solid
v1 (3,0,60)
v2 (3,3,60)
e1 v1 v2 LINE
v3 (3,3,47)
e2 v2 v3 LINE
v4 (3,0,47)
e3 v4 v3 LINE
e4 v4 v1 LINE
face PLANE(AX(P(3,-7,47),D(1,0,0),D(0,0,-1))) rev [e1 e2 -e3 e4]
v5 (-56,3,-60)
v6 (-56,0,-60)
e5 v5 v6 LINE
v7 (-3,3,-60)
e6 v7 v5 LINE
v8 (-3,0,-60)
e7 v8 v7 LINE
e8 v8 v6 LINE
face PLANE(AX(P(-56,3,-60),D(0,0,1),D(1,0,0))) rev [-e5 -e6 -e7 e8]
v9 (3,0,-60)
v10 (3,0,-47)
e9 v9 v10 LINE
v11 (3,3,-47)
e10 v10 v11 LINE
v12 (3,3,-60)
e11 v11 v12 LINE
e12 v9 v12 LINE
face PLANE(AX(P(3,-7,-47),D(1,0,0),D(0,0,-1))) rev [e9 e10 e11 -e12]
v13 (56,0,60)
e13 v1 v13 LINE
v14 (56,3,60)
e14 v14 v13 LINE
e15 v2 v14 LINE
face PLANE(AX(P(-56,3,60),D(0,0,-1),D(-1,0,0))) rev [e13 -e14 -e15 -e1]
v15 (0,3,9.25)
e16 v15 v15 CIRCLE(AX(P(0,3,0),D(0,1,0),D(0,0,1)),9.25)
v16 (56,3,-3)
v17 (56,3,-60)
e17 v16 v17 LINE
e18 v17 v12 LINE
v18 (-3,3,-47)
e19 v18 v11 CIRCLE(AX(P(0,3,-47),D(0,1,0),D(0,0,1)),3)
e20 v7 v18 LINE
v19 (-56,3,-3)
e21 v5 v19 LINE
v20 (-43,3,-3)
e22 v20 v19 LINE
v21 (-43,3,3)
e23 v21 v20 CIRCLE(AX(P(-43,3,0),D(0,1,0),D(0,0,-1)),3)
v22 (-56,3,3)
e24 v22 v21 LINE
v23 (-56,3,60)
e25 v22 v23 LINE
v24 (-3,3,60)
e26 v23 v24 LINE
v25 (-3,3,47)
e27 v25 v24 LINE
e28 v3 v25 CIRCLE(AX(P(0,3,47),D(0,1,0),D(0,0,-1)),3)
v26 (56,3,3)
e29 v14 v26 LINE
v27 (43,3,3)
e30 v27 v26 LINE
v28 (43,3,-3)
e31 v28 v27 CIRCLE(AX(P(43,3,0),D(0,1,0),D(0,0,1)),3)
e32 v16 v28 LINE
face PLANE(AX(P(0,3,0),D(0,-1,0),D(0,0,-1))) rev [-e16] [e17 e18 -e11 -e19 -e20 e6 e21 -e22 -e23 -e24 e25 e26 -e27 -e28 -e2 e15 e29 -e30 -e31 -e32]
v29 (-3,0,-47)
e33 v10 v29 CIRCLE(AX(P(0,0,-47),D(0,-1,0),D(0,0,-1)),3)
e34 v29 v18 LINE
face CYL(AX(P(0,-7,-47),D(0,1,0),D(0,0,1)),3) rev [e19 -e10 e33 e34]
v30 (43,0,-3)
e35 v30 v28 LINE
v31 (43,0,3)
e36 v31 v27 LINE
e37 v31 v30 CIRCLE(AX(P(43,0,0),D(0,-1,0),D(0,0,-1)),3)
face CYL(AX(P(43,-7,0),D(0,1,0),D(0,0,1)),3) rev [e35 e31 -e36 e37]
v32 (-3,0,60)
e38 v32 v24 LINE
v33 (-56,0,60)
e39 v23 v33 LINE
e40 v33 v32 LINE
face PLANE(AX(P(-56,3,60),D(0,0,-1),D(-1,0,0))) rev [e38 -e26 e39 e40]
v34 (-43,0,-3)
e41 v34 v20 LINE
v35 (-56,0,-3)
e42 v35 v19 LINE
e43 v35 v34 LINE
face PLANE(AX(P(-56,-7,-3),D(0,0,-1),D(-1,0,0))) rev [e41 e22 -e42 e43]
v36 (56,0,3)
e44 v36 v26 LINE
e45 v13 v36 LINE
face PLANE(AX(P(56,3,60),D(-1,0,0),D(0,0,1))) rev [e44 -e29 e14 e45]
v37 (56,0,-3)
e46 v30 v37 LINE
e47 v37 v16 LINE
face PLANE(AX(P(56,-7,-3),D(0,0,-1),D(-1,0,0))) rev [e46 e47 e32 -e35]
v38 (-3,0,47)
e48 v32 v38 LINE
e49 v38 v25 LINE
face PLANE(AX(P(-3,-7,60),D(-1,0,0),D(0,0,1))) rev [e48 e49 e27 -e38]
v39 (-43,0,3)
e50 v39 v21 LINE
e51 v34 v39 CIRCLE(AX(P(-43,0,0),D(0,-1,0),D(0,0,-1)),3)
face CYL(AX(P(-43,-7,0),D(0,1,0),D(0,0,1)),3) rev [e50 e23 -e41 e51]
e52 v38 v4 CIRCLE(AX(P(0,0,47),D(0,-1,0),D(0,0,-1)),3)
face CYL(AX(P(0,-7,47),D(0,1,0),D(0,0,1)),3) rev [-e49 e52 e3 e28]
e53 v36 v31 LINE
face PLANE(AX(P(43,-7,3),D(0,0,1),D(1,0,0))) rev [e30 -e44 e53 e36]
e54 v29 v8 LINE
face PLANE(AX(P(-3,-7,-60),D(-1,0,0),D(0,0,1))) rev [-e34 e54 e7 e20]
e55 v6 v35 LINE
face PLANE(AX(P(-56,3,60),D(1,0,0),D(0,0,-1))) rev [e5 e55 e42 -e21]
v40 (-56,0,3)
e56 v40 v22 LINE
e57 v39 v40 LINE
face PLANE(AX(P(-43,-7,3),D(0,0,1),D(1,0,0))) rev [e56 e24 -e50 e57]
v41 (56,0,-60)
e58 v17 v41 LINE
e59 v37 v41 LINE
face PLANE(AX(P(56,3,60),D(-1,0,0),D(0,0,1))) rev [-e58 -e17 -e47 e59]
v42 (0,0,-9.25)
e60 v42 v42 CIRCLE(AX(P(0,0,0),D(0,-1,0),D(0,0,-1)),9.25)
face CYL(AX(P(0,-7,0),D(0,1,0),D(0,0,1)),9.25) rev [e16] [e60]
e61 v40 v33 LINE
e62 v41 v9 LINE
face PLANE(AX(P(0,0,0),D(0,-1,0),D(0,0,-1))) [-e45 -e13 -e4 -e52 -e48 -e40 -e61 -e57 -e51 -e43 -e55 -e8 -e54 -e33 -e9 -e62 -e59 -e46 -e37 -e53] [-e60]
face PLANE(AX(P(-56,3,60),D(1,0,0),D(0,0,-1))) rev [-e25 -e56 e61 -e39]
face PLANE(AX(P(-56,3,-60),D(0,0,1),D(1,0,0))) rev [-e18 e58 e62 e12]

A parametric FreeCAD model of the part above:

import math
import FreeCAD as App
import Part
import Sketcher

V = App.Vector
Q = App.Units.Quantity

doc = App.newDocument("Part")
body = doc.addObject("PartDesign::Body", "Body")

# Sketch on XZ plane
sketch1 = body.newObject("Sketcher::SketchObject", "Sketch")
sketch1.AttachmentSupport = (doc.getObject("XZ_Plane"), [""])
sketch1.MapMode = "FlatFace"
sketch1.addGeometry(Part.LineSegment(V(-56, -60, 0), V(-56, 60, 0)), False)
sketch1.addGeometry(Part.LineSegment(V(-56, 60, 0), V(56, 60, 0)), False)
sketch1.addGeometry(Part.LineSegment(V(56, 60, 0), V(56, -60, 0)), False)
sketch1.addGeometry(Part.LineSegment(V(56, -60, 0), V(-56, -60, 0)), False)
sketch1.addConstraint(Sketcher.Constraint("Coincident", 0, 2, 1, 1))
sketch1.addConstraint(Sketcher.Constraint("Coincident", 1, 2, 2, 1))
sketch1.addConstraint(Sketcher.Constraint("Coincident", 2, 2, 3, 1))
sketch1.addConstraint(Sketcher.Constraint("Coincident", 3, 2, 0, 1))
sketch1.addConstraint(Sketcher.Constraint("Vertical", 0))
sketch1.addConstraint(Sketcher.Constraint("Horizontal", 1))
sketch1.addConstraint(Sketcher.Constraint("Vertical", 2))
sketch1.addConstraint(Sketcher.Constraint("Horizontal", 3))
sketch1.addConstraint(Sketcher.Constraint("Symmetric", 0, 2, 2, 2, -1, 1))
sketch1.addConstraint(Sketcher.Constraint("DistanceX", 1, 1, 1, 2, Q("112 mm")))
sketch1.addConstraint(Sketcher.Constraint("DistanceY", 0, 1, 0, 2, Q("120 mm")))
pad1 = body.newObject("PartDesign::Pad", "Pad")
pad1.Profile = sketch1
pad1.Length = 3
pad1.Reversed = True

# Sketch on XZ plane
sketch2 = body.newObject("Sketcher::SketchObject", "Sketch001")
sketch2.AttachmentSupport = (doc.getObject("XZ_Plane"), [""])
sketch2.MapMode = "FlatFace"
sketch2.AttachmentOffset = App.Placement(V(0, 0, -3), App.Rotation())
sketch2.addGeometry(Part.Circle(V(0, 0, 0), V(0, 0, 1), 9), False)
sketch2.addConstraint(Sketcher.Constraint("Coincident", 0, 3, -1, 1))
sketch2.addConstraint(Sketcher.Constraint("Diameter", 0, Q("18.5 mm")))
pocket1 = body.newObject("PartDesign::Pocket", "Pocket")
pocket1.Profile = sketch2
pocket1.Length = 10
pocket1.Reversed = True

# Sketch on XZ plane
sketch3 = body.newObject("Sketcher::SketchObject", "Sketch002")
sketch3.AttachmentSupport = (doc.getObject("XZ_Plane"), [""])
sketch3.MapMode = "FlatFace"
sketch3.AttachmentOffset = App.Placement(V(0, 0, -3), App.Rotation())
sketch3.addGeometry(Part.LineSegment(V(-3, 47, 0), V(-3, 60, 0)), False)
sketch3.addGeometry(Part.LineSegment(V(-3, 60, 0), V(3, 60, 0)), False)
sketch3.addGeometry(Part.LineSegment(V(3, 60, 0), V(3, 47, 0)), False)
sketch3.addGeometry(Part.ArcOfCircle(Part.Circle(V(0, 47, 0), V(0, 0, 1), 3), math.radians(180), math.radians(360)), False)
sketch3.addGeometry(Part.LineSegment(V(3, -60, 0), V(-3, -60, 0)), False)
sketch3.addGeometry(Part.LineSegment(V(-3, -60, 0), V(-3, -47, 0)), False)
sketch3.addGeometry(Part.ArcOfCircle(Part.Circle(V(0, -47, 0), V(0, 0, 1), 3), math.radians(0), math.radians(180)), False)
sketch3.addGeometry(Part.LineSegment(V(3, -47, 0), V(3, -60, 0)), False)
sketch3.addGeometry(Part.LineSegment(V(56, -3, 0), V(43, -3, 0)), False)
sketch3.addGeometry(Part.ArcOfCircle(Part.Circle(V(43, 0, 0), V(0, 0, 1), 3), math.radians(90), math.radians(270)), False)
sketch3.addGeometry(Part.LineSegment(V(43, 3, 0), V(56, 3, 0)), False)
sketch3.addGeometry(Part.LineSegment(V(56, 3, 0), V(56, -3, 0)), False)
sketch3.addGeometry(Part.LineSegment(V(-56, 3, 0), V(-43, 3, 0)), False)
sketch3.addGeometry(Part.ArcOfCircle(Part.Circle(V(-43, 0, 0), V(0, 0, 1), 3), math.radians(-90), math.radians(90)), False)
sketch3.addGeometry(Part.LineSegment(V(-43, -3, 0), V(-56, -3, 0)), False)
sketch3.addGeometry(Part.LineSegment(V(-56, -3, 0), V(-56, 3, 0)), False)
sketch3.addConstraint(Sketcher.Constraint("Coincident", 0, 2, 1, 1))
sketch3.addConstraint(Sketcher.Constraint("Coincident", 1, 2, 2, 1))
sketch3.addConstraint(Sketcher.Constraint("Tangent", 2, 2, 3, 2))
sketch3.addConstraint(Sketcher.Constraint("Tangent", 3, 1, 0, 1))
sketch3.addConstraint(Sketcher.Constraint("Coincident", 4, 2, 5, 1))
sketch3.addConstraint(Sketcher.Constraint("Tangent", 5, 2, 6, 2))
sketch3.addConstraint(Sketcher.Constraint("Tangent", 6, 1, 7, 1))
sketch3.addConstraint(Sketcher.Constraint("Coincident", 7, 2, 4, 1))
sketch3.addConstraint(Sketcher.Constraint("Tangent", 8, 2, 9, 2))
sketch3.addConstraint(Sketcher.Constraint("Tangent", 9, 1, 10, 1))
sketch3.addConstraint(Sketcher.Constraint("Coincident", 10, 2, 11, 1))
sketch3.addConstraint(Sketcher.Constraint("Coincident", 11, 2, 8, 1))
sketch3.addConstraint(Sketcher.Constraint("Tangent", 12, 2, 13, 2))
sketch3.addConstraint(Sketcher.Constraint("Tangent", 13, 1, 14, 1))
sketch3.addConstraint(Sketcher.Constraint("Coincident", 14, 2, 15, 1))
sketch3.addConstraint(Sketcher.Constraint("Coincident", 15, 2, 12, 1))
sketch3.addConstraint(Sketcher.Constraint("Vertical", 0))
sketch3.addConstraint(Sketcher.Constraint("Horizontal", 1))
sketch3.addConstraint(Sketcher.Constraint("Vertical", 2))
sketch3.addConstraint(Sketcher.Constraint("Horizontal", 4))
sketch3.addConstraint(Sketcher.Constraint("Vertical", 5))
sketch3.addConstraint(Sketcher.Constraint("Vertical", 7))
sketch3.addConstraint(Sketcher.Constraint("Horizontal", 8))
sketch3.addConstraint(Sketcher.Constraint("Horizontal", 10))
sketch3.addConstraint(Sketcher.Constraint("Vertical", 11))
sketch3.addConstraint(Sketcher.Constraint("Horizontal", 12))
sketch3.addConstraint(Sketcher.Constraint("Horizontal", 14))
sketch3.addConstraint(Sketcher.Constraint("Vertical", 15))
sketch3.addConstraint(Sketcher.Constraint("Equal", 3, 6))
sketch3.addConstraint(Sketcher.Constraint("Equal", 6, 9))
sketch3.addConstraint(Sketcher.Constraint("Equal", 9, 13))
sketch3.addConstraint(Sketcher.Constraint("Symmetric", 3, 3, 6, 3, -1, 1))
sketch3.addConstraint(Sketcher.Constraint("Symmetric", 9, 3, 13, 3, -1, 1))
sketch3.addConstraint(Sketcher.Constraint("Symmetric", 11, 2, 14, 2, -2))
sketch3.addConstraint(Sketcher.Constraint("Symmetric", 0, 2, 4, 2, -1))
sketch3.addConstraint(Sketcher.Constraint("Equal", 14, 0))
sketch3.addConstraint(Sketcher.Constraint("Radius", 3, Q("3 mm")))
sketch3.addConstraint(Sketcher.Constraint("DistanceX", 8, 2, 8, 1, Q("13 mm")))
sketch3.addConstraint(Sketcher.Constraint("DistanceY", -1, 1, 3, 3, Q("47 mm")))
sketch3.addConstraint(Sketcher.Constraint("DistanceX", -1, 1, 9, 3, Q("43 mm")))
pocket2 = body.newObject("PartDesign::Pocket", "Pocket001")
pocket2.Profile = sketch3
pocket2.Length = 10
pocket2.Reversed = True

doc.recompute()
